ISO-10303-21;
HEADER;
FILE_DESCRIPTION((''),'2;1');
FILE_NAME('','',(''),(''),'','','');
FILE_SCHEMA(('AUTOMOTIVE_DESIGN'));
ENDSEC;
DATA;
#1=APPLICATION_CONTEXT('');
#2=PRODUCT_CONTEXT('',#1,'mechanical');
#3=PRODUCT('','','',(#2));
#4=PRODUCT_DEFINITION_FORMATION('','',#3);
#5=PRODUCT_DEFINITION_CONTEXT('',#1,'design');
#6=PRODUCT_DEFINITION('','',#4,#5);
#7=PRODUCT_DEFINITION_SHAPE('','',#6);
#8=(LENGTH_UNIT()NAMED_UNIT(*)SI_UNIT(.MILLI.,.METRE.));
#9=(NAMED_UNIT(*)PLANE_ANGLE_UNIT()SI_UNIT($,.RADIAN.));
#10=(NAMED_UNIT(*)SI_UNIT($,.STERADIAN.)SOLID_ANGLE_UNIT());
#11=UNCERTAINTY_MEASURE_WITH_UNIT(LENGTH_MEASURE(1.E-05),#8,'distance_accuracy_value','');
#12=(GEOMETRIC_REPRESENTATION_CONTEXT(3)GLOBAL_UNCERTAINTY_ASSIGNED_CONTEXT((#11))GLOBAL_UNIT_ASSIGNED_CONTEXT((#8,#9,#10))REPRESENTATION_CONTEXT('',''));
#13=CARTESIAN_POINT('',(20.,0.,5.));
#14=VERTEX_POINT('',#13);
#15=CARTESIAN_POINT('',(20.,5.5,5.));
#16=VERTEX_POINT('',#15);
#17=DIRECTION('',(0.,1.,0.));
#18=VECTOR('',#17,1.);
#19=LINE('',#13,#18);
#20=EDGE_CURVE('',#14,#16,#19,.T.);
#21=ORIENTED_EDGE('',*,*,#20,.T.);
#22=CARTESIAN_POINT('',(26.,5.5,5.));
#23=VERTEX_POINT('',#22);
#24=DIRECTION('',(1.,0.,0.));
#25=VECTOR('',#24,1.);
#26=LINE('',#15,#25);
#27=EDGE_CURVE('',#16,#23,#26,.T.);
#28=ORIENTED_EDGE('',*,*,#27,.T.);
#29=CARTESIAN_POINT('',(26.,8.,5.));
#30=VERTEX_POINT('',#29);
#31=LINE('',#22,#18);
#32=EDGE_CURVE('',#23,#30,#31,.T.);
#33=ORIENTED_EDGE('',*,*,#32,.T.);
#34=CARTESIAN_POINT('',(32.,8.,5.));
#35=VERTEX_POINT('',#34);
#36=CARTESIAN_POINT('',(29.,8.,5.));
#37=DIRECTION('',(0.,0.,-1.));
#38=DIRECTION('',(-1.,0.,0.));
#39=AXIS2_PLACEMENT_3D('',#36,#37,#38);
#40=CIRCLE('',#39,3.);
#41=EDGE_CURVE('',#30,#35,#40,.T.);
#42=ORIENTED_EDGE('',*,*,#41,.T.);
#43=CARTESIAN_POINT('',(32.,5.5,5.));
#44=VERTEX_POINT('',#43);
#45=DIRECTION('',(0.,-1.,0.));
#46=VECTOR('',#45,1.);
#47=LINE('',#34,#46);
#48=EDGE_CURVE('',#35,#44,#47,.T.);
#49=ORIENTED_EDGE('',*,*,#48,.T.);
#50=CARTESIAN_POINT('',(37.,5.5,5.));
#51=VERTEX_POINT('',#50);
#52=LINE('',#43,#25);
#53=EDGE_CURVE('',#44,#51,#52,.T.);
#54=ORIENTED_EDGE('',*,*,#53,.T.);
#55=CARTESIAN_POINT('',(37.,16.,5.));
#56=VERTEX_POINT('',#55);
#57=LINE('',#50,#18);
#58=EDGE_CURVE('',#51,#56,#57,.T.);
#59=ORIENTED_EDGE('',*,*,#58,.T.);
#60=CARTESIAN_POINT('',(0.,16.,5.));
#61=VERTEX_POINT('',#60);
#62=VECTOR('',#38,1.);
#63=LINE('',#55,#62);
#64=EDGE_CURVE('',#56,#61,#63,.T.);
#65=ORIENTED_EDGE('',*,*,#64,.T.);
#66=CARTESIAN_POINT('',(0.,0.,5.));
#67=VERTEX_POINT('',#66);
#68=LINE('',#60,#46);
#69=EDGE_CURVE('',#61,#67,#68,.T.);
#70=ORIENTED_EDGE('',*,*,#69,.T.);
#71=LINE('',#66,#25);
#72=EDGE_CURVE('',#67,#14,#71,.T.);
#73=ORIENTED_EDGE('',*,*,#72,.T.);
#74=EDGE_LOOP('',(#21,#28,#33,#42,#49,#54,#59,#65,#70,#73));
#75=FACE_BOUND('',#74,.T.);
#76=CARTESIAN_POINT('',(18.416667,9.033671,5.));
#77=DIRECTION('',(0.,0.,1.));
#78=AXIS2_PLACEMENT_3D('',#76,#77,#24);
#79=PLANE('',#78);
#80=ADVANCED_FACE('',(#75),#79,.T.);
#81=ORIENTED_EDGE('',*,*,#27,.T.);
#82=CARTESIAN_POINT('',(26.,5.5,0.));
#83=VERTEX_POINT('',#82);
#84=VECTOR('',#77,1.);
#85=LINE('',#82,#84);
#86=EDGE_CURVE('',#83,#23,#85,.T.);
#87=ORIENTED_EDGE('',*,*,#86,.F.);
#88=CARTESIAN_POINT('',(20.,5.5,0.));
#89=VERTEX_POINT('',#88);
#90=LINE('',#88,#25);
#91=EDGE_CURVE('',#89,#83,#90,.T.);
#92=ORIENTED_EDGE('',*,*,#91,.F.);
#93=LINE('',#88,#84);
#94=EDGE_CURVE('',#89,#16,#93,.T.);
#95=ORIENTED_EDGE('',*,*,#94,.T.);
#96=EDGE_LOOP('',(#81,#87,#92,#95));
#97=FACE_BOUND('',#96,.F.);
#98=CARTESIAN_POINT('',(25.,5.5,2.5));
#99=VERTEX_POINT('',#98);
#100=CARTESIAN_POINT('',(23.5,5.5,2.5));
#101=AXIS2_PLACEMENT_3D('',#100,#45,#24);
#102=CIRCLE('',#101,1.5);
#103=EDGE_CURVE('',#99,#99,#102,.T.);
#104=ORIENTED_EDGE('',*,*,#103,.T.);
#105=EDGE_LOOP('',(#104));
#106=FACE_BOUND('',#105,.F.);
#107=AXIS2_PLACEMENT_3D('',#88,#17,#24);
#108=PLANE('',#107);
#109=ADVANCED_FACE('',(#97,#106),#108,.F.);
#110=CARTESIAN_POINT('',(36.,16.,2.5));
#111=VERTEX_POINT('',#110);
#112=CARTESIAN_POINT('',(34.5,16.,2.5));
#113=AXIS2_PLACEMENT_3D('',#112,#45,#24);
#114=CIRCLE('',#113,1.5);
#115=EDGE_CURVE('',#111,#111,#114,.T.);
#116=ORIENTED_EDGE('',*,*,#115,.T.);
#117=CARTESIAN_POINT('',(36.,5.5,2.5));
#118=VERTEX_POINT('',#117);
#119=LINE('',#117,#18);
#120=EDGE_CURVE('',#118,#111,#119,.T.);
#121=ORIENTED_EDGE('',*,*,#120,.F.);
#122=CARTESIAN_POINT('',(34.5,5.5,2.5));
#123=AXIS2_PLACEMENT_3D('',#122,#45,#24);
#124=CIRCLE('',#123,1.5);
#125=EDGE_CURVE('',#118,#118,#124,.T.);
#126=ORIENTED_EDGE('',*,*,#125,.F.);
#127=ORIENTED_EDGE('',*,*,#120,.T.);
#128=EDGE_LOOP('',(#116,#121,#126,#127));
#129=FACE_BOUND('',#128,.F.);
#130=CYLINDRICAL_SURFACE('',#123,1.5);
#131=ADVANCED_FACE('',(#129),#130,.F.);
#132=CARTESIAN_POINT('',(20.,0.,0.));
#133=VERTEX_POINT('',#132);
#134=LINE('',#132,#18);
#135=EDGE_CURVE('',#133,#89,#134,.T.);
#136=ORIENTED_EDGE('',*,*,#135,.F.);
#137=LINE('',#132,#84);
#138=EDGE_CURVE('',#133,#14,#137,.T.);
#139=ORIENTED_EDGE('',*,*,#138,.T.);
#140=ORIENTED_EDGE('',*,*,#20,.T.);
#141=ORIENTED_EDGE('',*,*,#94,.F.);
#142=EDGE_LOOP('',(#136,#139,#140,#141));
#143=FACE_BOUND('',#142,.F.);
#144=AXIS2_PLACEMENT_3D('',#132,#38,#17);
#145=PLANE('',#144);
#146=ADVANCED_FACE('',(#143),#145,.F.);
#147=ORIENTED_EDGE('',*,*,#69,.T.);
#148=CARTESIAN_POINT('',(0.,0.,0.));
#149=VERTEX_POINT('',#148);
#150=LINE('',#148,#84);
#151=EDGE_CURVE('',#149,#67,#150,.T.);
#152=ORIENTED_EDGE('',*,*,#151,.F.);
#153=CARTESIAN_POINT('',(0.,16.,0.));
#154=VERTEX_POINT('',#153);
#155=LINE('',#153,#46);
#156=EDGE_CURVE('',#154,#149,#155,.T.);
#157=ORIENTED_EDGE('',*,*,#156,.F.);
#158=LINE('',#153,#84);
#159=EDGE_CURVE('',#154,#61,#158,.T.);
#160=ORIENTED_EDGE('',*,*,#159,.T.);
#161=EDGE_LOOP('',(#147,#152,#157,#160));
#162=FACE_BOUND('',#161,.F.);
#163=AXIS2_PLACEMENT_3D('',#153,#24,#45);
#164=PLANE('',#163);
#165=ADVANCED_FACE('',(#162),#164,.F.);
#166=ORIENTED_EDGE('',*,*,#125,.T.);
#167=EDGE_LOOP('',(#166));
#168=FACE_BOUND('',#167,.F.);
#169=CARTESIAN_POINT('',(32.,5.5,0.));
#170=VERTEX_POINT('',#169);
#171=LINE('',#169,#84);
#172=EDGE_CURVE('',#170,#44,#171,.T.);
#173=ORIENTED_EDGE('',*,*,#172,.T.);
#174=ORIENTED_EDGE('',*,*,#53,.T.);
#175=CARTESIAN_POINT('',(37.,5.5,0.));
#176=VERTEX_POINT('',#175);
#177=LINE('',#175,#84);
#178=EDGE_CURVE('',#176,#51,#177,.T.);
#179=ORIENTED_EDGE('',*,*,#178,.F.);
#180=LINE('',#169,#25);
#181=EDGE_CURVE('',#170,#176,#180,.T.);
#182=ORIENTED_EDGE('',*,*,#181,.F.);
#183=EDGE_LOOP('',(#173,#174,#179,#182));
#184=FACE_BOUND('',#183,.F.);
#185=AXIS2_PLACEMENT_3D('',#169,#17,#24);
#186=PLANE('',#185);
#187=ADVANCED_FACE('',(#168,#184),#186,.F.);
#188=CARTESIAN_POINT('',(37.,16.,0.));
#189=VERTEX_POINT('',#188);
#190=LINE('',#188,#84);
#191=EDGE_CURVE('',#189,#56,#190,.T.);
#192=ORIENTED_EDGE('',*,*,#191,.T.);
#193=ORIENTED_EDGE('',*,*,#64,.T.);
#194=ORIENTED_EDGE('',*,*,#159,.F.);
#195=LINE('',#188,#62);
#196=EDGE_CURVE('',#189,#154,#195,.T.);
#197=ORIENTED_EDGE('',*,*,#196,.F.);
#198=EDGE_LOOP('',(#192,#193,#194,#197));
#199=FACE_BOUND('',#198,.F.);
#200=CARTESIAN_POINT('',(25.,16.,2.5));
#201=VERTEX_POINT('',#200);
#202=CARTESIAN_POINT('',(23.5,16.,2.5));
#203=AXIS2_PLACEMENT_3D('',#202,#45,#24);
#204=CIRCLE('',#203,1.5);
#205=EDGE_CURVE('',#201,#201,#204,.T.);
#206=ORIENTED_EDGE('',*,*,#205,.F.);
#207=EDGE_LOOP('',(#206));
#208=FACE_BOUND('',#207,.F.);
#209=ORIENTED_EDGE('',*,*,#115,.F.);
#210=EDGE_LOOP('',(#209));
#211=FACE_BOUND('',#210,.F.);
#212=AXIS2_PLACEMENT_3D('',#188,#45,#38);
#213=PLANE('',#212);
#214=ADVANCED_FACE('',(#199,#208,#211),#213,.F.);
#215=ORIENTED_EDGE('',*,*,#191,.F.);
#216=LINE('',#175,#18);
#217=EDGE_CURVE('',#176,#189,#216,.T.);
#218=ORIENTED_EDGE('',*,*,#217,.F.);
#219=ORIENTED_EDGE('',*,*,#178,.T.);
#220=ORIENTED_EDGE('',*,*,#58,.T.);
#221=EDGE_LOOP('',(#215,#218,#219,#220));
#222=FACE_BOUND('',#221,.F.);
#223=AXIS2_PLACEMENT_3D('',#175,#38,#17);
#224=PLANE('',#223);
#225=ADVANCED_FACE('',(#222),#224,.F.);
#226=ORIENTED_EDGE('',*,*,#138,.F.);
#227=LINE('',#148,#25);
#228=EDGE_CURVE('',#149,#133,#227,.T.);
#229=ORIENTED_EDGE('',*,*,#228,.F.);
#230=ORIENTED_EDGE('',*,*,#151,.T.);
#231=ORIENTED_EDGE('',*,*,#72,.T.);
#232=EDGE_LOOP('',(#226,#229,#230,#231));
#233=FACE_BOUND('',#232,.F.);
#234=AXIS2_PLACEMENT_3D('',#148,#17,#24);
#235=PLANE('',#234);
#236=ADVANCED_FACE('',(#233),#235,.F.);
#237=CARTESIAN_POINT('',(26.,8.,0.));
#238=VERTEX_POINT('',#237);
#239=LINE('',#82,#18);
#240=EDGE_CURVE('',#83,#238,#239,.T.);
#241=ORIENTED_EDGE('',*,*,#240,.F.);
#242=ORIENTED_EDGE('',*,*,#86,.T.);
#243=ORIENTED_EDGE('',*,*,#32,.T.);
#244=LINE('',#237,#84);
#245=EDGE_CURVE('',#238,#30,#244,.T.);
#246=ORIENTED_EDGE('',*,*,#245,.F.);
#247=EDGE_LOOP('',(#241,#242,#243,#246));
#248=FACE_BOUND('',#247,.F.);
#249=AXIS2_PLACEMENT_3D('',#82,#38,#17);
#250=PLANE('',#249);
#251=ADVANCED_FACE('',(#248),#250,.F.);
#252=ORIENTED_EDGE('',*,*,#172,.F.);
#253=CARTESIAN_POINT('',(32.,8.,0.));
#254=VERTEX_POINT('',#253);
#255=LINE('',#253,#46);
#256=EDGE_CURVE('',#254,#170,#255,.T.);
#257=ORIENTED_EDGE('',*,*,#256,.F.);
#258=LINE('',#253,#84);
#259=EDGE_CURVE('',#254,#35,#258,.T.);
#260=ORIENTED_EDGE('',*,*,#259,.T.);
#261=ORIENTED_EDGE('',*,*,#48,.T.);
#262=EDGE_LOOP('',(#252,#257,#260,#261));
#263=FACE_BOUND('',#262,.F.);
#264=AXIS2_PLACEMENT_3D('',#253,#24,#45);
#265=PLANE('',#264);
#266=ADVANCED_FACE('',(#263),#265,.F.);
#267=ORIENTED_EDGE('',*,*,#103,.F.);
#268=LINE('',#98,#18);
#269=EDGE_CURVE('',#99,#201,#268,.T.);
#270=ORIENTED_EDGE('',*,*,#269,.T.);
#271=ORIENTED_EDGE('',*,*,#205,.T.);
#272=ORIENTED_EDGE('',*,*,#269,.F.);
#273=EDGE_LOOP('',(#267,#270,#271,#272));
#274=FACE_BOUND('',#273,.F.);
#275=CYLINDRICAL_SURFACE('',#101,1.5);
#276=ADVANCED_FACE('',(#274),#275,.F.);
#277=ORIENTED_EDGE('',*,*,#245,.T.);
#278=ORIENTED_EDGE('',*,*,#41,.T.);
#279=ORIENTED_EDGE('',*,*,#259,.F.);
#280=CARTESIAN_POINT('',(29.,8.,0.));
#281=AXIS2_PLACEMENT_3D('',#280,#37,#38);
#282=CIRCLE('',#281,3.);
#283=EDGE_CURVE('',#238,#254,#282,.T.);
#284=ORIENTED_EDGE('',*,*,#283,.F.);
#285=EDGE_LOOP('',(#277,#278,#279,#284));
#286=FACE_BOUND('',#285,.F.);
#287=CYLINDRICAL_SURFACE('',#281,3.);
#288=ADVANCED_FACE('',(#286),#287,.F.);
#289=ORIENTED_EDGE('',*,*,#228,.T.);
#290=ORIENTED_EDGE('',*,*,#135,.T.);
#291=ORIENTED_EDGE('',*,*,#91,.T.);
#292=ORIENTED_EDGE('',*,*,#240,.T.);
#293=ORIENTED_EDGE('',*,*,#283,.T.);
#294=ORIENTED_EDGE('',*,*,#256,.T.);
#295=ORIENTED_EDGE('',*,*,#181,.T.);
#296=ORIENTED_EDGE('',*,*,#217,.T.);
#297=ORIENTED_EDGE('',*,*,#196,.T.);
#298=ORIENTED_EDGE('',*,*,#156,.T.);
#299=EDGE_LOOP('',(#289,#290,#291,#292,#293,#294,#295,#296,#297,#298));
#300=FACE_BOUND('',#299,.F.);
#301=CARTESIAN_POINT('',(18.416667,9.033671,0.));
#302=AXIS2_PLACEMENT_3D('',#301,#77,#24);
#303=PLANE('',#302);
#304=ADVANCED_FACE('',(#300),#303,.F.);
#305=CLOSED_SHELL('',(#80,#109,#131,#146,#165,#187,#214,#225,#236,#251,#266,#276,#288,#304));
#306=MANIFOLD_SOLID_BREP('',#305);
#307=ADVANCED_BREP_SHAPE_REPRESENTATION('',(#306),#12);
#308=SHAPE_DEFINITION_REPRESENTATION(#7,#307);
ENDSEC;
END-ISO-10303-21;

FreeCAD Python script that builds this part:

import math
import FreeCAD as App
import Part
import Sketcher
Q = App.Units.Quantity

doc = App.newDocument("Part")
body = doc.addObject("PartDesign::Body", "Body")

# Sketch on XY plane
sketch1 = doc.addObject("Sketcher::SketchObject", "Sketch")
body.addObject(sketch1)
sketch1.AttachmentSupport = (doc.XY_Plane, [""])
sketch1.MapMode = "FlatFace"
sketch1.addGeometry(Part.LineSegment(App.Vector(0, 16, 0), App.Vector(0, 0, 0)), False)
sketch1.addGeometry(Part.LineSegment(App.Vector(0, 0, 0), App.Vector(20, 0, 0)), False)
sketch1.addGeometry(Part.LineSegment(App.Vector(20, 0, 0), App.Vector(20, 5.5, 0)), False)
sketch1.addGeometry(Part.LineSegment(App.Vector(20, 5.5, 0), App.Vector(26, 5.5, 0)), False)
sketch1.addGeometry(Part.LineSegment(App.Vector(26, 5.5, 0), App.Vector(26, 8, 0)), False)
sketch1.addGeometry(Part.ArcOfCircle(Part.Circle(App.Vector(29, 8, 0), App.Vector(0, 0, 1), 3), math.radians(0), math.radians(180)), False)
sketch1.addGeometry(Part.LineSegment(App.Vector(32, 8, 0), App.Vector(32, 5.5, 0)), False)
sketch1.addGeometry(Part.LineSegment(App.Vector(32, 5.5, 0), App.Vector(37, 5.5, 0)), False)
sketch1.addGeometry(Part.LineSegment(App.Vector(37, 5.5, 0), App.Vector(37, 16, 0)), False)
sketch1.addGeometry(Part.LineSegment(App.Vector(37, 16, 0), App.Vector(0, 16, 0)), False)
sketch1.addConstraint(Sketcher.Constraint("Coincident", 0, 2, 1, 1))
sketch1.addConstraint(Sketcher.Constraint("Coincident", 1, 2, 2, 1))
sketch1.addConstraint(Sketcher.Constraint("Coincident", 2, 2, 3, 1))
sketch1.addConstraint(Sketcher.Constraint("Coincident", 3, 2, 4, 1))
sketch1.addConstraint(Sketcher.Constraint("Tangent", 4, 2, 5, 2))
sketch1.addConstraint(Sketcher.Constraint("Tangent", 5, 1, 6, 1))
sketch1.addConstraint(Sketcher.Constraint("Coincident", 6, 2, 7, 1))
sketch1.addConstraint(Sketcher.Constraint("Coincident", 7, 2, 8, 1))
sketch1.addConstraint(Sketcher.Constraint("Coincident", 8, 2, 9, 1))
sketch1.addConstraint(Sketcher.Constraint("Coincident", 9, 2, 0, 1))
sketch1.addConstraint(Sketcher.Constraint("Vertical", 0))
sketch1.addConstraint(Sketcher.Constraint("Horizontal", 1))
sketch1.addConstraint(Sketcher.Constraint("Vertical", 2))
sketch1.addConstraint(Sketcher.Constraint("Horizontal", 3))
sketch1.addConstraint(Sketcher.Constraint("Vertical", 4))
sketch1.addConstraint(Sketcher.Constraint("Vertical", 6))
sketch1.addConstraint(Sketcher.Constraint("Horizontal", 7))
sketch1.addConstraint(Sketcher.Constraint("Vertical", 8))
sketch1.addConstraint(Sketcher.Constraint("Horizontal", 9))
sketch1.addConstraint(Sketcher.Constraint("Coincident", 0, 2, -1, 1))
sketch1.addConstraint(Sketcher.Constraint("Horizontal", 3, 2, 6, 2))
sketch1.addConstraint(Sketcher.Constraint("Radius", 5, Q("3 mm")))
sketch1.addConstraint(Sketcher.Constraint("DistanceX", 1, 1, 1, 2, Q("20 mm")))
sketch1.addConstraint(Sketcher.Constraint("DistanceX", 3, 1, 3, 2, Q("6 mm")))
sketch1.addConstraint(Sketcher.Constraint("DistanceX", 7, 1, 7, 2, Q("5 mm")))
sketch1.addConstraint(Sketcher.Constraint("DistanceY", 0, 2, 0, 1, Q("16 mm")))
sketch1.addConstraint(Sketcher.Constraint("DistanceY", 2, 1, 2, 2, Q("5.5 mm")))
sketch1.addConstraint(Sketcher.Constraint("DistanceY", 4, 1, 4, 2, Q("2.5 mm")))
pad1 = doc.addObject("PartDesign::Pad", "Pad")
body.addObject(pad1)
pad1.Profile = sketch1
pad1.Length = 5

# Sketch on XZ plane
sketch2 = doc.addObject("Sketcher::SketchObject", "Sketch001")
body.addObject(sketch2)
sketch2.AttachmentSupport = (doc.XZ_Plane, [""])
sketch2.MapMode = "FlatFace"
sketch2.AttachmentOffset = App.Placement(App.Vector(0, 0, -5.5), App.Rotation())
sketch2.addGeometry(Part.Circle(App.Vector(23.5, 2.5, 0), App.Vector(0, 0, 1), 1.5), False)
sketch2.addGeometry(Part.Circle(App.Vector(34.5, 2.5, 0), App.Vector(0, 0, 1), 1.5), False)
sketch2.addConstraint(Sketcher.Constraint("Equal", 0, 1))
sketch2.addConstraint(Sketcher.Constraint("Horizontal", 0, 3, 1, 3))
sketch2.addConstraint(Sketcher.Constraint("Diameter", 0, Q("3 mm")))
sketch2.addConstraint(Sketcher.Constraint("DistanceX", 0, 3, 1, 3, Q("11 mm")))
sketch2.addConstraint(Sketcher.Constraint("DistanceX", -1, 1, 0, 3, Q("23.5 mm")))
sketch2.addConstraint(Sketcher.Constraint("DistanceY", -1, 1, 0, 3, Q("2.5 mm")))
pocket1 = doc.addObject("PartDesign::Pocket", "Pocket")
body.addObject(pocket1)
pocket1.Profile = sketch2
pocket1.Type = "ThroughAll"

doc.recompute()
